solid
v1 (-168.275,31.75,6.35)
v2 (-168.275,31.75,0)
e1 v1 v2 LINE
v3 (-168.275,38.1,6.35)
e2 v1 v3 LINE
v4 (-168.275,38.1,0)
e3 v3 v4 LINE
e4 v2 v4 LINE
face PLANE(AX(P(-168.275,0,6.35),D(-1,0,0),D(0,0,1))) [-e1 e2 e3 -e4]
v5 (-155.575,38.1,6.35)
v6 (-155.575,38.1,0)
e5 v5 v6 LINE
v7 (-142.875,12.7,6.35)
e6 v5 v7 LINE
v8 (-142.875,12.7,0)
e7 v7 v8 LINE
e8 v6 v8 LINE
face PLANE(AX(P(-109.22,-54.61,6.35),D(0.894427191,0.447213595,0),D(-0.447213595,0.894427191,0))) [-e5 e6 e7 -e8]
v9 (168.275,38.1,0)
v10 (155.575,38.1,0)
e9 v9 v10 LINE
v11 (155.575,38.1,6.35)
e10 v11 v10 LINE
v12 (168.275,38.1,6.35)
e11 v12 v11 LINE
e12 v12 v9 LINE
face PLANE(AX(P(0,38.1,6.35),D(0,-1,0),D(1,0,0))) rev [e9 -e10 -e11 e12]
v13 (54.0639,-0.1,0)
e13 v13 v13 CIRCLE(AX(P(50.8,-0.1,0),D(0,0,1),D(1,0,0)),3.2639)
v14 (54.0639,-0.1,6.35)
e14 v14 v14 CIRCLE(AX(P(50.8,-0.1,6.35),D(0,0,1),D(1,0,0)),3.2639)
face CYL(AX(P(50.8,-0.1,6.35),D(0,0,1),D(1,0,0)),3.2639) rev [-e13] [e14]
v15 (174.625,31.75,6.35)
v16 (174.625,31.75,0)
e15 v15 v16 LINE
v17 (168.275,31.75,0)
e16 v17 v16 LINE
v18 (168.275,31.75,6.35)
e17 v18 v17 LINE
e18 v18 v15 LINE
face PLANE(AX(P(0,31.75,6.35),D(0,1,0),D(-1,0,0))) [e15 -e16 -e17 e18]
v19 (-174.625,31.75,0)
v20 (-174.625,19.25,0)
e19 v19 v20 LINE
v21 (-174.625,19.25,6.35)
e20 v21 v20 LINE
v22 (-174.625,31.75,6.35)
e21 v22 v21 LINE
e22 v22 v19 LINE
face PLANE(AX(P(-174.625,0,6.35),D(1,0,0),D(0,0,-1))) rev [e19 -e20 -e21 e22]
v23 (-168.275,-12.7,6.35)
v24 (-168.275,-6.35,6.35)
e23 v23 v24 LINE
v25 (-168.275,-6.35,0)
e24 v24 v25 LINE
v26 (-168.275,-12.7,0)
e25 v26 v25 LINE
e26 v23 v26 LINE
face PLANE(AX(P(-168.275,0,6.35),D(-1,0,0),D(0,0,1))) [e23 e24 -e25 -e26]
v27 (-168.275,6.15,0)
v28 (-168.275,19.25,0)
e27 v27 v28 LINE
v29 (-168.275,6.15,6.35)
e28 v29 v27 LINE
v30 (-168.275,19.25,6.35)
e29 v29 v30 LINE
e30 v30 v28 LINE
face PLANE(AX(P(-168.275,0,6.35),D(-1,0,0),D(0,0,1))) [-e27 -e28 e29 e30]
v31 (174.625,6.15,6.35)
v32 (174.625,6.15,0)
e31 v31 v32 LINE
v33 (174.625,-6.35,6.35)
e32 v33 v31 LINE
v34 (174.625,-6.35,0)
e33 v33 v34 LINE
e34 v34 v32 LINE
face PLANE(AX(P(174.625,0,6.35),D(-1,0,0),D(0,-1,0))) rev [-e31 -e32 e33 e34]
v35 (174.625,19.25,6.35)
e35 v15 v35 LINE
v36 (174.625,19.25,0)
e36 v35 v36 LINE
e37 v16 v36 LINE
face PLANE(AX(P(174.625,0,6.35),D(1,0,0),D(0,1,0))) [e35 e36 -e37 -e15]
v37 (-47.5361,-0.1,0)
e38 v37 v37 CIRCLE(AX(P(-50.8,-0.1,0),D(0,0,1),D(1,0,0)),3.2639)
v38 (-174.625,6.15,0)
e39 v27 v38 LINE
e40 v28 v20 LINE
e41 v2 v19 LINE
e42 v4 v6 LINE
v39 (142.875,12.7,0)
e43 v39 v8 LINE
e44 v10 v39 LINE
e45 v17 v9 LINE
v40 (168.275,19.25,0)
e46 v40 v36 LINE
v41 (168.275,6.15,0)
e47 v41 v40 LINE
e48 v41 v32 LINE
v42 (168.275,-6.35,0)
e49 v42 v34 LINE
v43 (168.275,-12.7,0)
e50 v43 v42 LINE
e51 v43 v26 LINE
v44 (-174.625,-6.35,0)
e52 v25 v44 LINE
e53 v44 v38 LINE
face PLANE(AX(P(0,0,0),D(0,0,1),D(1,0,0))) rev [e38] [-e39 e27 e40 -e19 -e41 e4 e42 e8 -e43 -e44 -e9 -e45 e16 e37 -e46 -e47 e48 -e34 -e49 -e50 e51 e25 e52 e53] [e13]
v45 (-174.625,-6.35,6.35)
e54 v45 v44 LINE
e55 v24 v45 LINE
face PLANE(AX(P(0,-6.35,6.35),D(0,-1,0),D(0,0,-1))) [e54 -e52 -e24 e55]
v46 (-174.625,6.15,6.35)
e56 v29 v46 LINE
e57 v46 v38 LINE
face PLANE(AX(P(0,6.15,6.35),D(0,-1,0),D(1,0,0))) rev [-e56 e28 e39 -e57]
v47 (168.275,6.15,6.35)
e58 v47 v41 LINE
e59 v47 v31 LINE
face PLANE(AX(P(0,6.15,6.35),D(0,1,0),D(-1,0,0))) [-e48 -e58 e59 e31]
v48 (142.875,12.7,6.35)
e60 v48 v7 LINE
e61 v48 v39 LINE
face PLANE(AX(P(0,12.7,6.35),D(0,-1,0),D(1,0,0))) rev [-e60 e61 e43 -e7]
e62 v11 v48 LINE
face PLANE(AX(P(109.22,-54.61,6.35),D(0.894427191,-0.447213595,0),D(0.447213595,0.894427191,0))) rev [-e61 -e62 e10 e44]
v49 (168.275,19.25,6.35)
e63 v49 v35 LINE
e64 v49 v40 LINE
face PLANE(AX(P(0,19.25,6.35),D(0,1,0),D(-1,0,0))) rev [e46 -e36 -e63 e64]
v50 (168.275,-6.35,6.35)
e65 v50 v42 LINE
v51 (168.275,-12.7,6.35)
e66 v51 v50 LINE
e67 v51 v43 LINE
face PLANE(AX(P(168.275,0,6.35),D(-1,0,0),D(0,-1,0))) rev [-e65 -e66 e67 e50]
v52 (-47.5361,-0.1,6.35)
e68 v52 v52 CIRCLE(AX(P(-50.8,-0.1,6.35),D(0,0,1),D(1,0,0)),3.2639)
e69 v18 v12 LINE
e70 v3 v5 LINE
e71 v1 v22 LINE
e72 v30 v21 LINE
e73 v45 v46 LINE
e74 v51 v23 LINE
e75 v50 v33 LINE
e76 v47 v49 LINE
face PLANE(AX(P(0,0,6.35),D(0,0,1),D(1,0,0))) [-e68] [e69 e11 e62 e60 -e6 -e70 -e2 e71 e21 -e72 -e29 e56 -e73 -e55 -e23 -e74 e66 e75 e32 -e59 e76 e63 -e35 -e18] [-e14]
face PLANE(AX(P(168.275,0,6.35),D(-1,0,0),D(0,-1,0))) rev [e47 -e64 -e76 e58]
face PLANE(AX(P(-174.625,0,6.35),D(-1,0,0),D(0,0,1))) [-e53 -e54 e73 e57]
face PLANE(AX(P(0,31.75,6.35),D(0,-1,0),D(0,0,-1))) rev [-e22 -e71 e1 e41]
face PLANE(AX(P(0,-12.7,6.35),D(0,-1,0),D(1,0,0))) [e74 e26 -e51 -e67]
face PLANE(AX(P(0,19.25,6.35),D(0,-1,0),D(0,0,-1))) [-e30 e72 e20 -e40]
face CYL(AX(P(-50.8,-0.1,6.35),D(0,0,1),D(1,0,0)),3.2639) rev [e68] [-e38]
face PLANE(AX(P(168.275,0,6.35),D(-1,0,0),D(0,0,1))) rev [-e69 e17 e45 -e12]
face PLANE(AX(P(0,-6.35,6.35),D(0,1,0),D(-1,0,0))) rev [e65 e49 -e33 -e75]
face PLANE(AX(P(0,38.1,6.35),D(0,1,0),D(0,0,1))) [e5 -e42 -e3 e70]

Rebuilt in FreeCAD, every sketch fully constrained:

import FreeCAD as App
import Part
import Sketcher
Q = App.Units.Quantity

doc = App.newDocument("Part")
body = doc.addObject("PartDesign::Body", "Body")

sketch1 = body.newObject("Sketcher::SketchObject", "Sketch")
sketch1.AttachmentSupport = (doc.getObject("XY_Plane"), [""])
sketch1.MapMode = "FlatFace"
sketch1.addGeometry(Part.LineSegment(App.Vector(-168.275, -6.35, 0), App.Vector(-168.275, -12.7, 0)), False)
sketch1.addGeometry(Part.LineSegment(App.Vector(-168.275, -12.7, 0), App.Vector(168.275, -12.7, 0)), False)
sketch1.addGeometry(Part.LineSegment(App.Vector(168.275, -12.7, 0), App.Vector(168.275, -6.35, 0)), False)
sketch1.addGeometry(Part.LineSegment(App.Vector(168.275, -6.35, 0), App.Vector(174.625, -6.35, 0)), False)
sketch1.addGeometry(Part.LineSegment(App.Vector(174.625, -6.35, 0), App.Vector(174.625, 6.15, 0)), False)
sketch1.addGeometry(Part.LineSegment(App.Vector(174.625, 6.15, 0), App.Vector(168.275, 6.15, 0)), False)
sketch1.addGeometry(Part.LineSegment(App.Vector(168.275, 6.15, 0), App.Vector(168.275, 19.25, 0)), False)
sketch1.addGeometry(Part.LineSegment(App.Vector(168.275, 19.25, 0), App.Vector(174.625, 19.25, 0)), False)
sketch1.addGeometry(Part.LineSegment(App.Vector(174.625, 19.25, 0), App.Vector(174.625, 31.75, 0)), False)
sketch1.addGeometry(Part.LineSegment(App.Vector(174.625, 31.75, 0), App.Vector(168.275, 31.75, 0)), False)
sketch1.addGeometry(Part.LineSegment(App.Vector(168.275, 31.75, 0), App.Vector(168.275, 38.1, 0)), False)
sketch1.addGeometry(Part.LineSegment(App.Vector(168.275, 38.1, 0), App.Vector(155.575, 38.1, 0)), False)
sketch1.addGeometry(Part.LineSegment(App.Vector(155.575, 38.1, 0), App.Vector(142.875, 12.7, 0)), False)
sketch1.addGeometry(Part.LineSegment(App.Vector(142.875, 12.7, 0), App.Vector(-142.875, 12.7, 0)), False)
sketch1.addGeometry(Part.LineSegment(App.Vector(-142.875, 12.7, 0), App.Vector(-155.575, 38.1, 0)), False)
sketch1.addGeometry(Part.LineSegment(App.Vector(-155.575, 38.1, 0), App.Vector(-168.275, 38.1, 0)), False)
sketch1.addGeometry(Part.LineSegment(App.Vector(-168.275, 38.1, 0), App.Vector(-168.275, 31.75, 0)), False)
sketch1.addGeometry(Part.LineSegment(App.Vector(-168.275, 31.75, 0), App.Vector(-174.625, 31.75, 0)), False)
sketch1.addGeometry(Part.LineSegment(App.Vector(-174.625, 31.75, 0), App.Vector(-174.625, 19.25, 0)), False)
sketch1.addGeometry(Part.LineSegment(App.Vector(-174.625, 19.25, 0), App.Vector(-168.275, 19.25, 0)), False)
sketch1.addGeometry(Part.LineSegment(App.Vector(-168.275, 19.25, 0), App.Vector(-168.275, 6.15, 0)), False)
sketch1.addGeometry(Part.LineSegment(App.Vector(-168.275, 6.15, 0), App.Vector(-174.625, 6.15, 0)), False)
sketch1.addGeometry(Part.LineSegment(App.Vector(-174.625, 6.15, 0), App.Vector(-174.625, -6.35, 0)), False)
sketch1.addGeometry(Part.LineSegment(App.Vector(-174.625, -6.35, 0), App.Vector(-168.275, -6.35, 0)), False)
sketch1.addConstraint(Sketcher.Constraint("Coincident", 0, 2, 1, 1))
sketch1.addConstraint(Sketcher.Constraint("Coincident", 1, 2, 2, 1))
sketch1.addConstraint(Sketcher.Constraint("Coincident", 2, 2, 3, 1))
sketch1.addConstraint(Sketcher.Constraint("Coincident", 3, 2, 4, 1))
sketch1.addConstraint(Sketcher.Constraint("Coincident", 4, 2, 5, 1))
sketch1.addConstraint(Sketcher.Constraint("Coincident", 5, 2, 6, 1))
sketch1.addConstraint(Sketcher.Constraint("Coincident", 6, 2, 7, 1))
sketch1.addConstraint(Sketcher.Constraint("Coincident", 7, 2, 8, 1))
sketch1.addConstraint(Sketcher.Constraint("Coincident", 8, 2, 9, 1))
sketch1.addConstraint(Sketcher.Constraint("Coincident", 9, 2, 10, 1))
sketch1.addConstraint(Sketcher.Constraint("Coincident", 10, 2, 11, 1))
sketch1.addConstraint(Sketcher.Constraint("Coincident", 11, 2, 12, 1))
sketch1.addConstraint(Sketcher.Constraint("Coincident", 12, 2, 13, 1))
sketch1.addConstraint(Sketcher.Constraint("Coincident", 13, 2, 14, 1))
sketch1.addConstraint(Sketcher.Constraint("Coincident", 14, 2, 15, 1))
sketch1.addConstraint(Sketcher.Constraint("Coincident", 15, 2, 16, 1))
sketch1.addConstraint(Sketcher.Constraint("Coincident", 16, 2, 17, 1))
sketch1.addConstraint(Sketcher.Constraint("Coincident", 17, 2, 18, 1))
sketch1.addConstraint(Sketcher.Constraint("Coincident", 18, 2, 19, 1))
sketch1.addConstraint(Sketcher.Constraint("Coincident", 19, 2, 20, 1))
sketch1.addConstraint(Sketcher.Constraint("Coincident", 20, 2, 21, 1))
sketch1.addConstraint(Sketcher.Constraint("Coincident", 21, 2, 22, 1))
sketch1.addConstraint(Sketcher.Constraint("Coincident", 22, 2, 23, 1))
sketch1.addConstraint(Sketcher.Constraint("Coincident", 23, 2, 0, 1))
sketch1.addConstraint(Sketcher.Constraint("Vertical", 0))
sketch1.addConstraint(Sketcher.Constraint("Horizontal", 1))
sketch1.addConstraint(Sketcher.Constraint("Vertical", 2))
sketch1.addConstraint(Sketcher.Constraint("Horizontal", 3))
sketch1.addConstraint(Sketcher.Constraint("Vertical", 4))
sketch1.addConstraint(Sketcher.Constraint("Horizontal", 5))
sketch1.addConstraint(Sketcher.Constraint("Vertical", 6))
sketch1.addConstraint(Sketcher.Constraint("Horizontal", 7))
sketch1.addConstraint(Sketcher.Constraint("Vertical", 8))
sketch1.addConstraint(Sketcher.Constraint("Horizontal", 9))
sketch1.addConstraint(Sketcher.Constraint("Vertical", 10))
sketch1.addConstraint(Sketcher.Constraint("Horizontal", 11))
sketch1.addConstraint(Sketcher.Constraint("Horizontal", 13))
sketch1.addConstraint(Sketcher.Constraint("Horizontal", 15))
sketch1.addConstraint(Sketcher.Constraint("Vertical", 16))
sketch1.addConstraint(Sketcher.Constraint("Horizontal", 17))
sketch1.addConstraint(Sketcher.Constraint("Vertical", 18))
sketch1.addConstraint(Sketcher.Constraint("Horizontal", 19))
sketch1.addConstraint(Sketcher.Constraint("Vertical", 20))
sketch1.addConstraint(Sketcher.Constraint("Horizontal", 21))
sketch1.addConstraint(Sketcher.Constraint("Vertical", 22))
sketch1.addConstraint(Sketcher.Constraint("Horizontal", 23))
sketch1.addConstraint(Sketcher.Constraint("Symmetric", 11, 2, 14, 2, -2))
sketch1.addConstraint(Sketcher.Constraint("Symmetric", 9, 2, 16, 2, -2))
sketch1.addConstraint(Sketcher.Constraint("Symmetric", 7, 2, 18, 2, -2))
sketch1.addConstraint(Sketcher.Constraint("Symmetric", 5, 2, 20, 2, -2))
sketch1.addConstraint(Sketcher.Constraint("Symmetric", 3, 2, 22, 2, -2))
sketch1.addConstraint(Sketcher.Constraint("Vertical", 2, 2, 5, 2))
sketch1.addConstraint(Sketcher.Constraint("Vertical", 4, 2, 7, 2))
sketch1.addConstraint(Sketcher.Constraint("Vertical", 6, 2, 9, 2))
sketch1.addConstraint(Sketcher.Constraint("Vertical", 0, 2, 15, 2))
sketch1.addConstraint(Sketcher.Constraint("Equal", 23, 0))
sketch1.addConstraint(Sketcher.Constraint("Equal", 4, 8))
sketch1.addConstraint(Sketcher.Constraint("Equal", 2, 10))
sketch1.addConstraint(Sketcher.Constraint("Equal", 12, 14))
sketch1.addConstraint(Sketcher.Constraint("DistanceX", 11, 2, 11, 1, Q("0.5 in")))
sketch1.addConstraint(Sketcher.Constraint("DistanceX", 12, 2, 5, 2, Q("1 in")))
sketch1.addConstraint(Sketcher.Constraint("DistanceY", 12, 2, 11, 2, Q("1 in")))
sketch1.addConstraint(Sketcher.Constraint("DistanceY", 0, 2, 13, 2, Q("1 in")))
sketch1.addConstraint(Sketcher.Constraint("DistanceX", 1, 1, 1, 2, Q("13.25 in")))
sketch1.addConstraint(Sketcher.Constraint("DistanceX", 3, 1, 3, 2, Q("0.25 in")))
sketch1.addConstraint(Sketcher.Constraint("DistanceY", 0, 2, -1, 1, Q("0.5 in")))
sketch1.addConstraint(Sketcher.Constraint("DistanceY", 4, 1, 4, 2, Q("12.5 mm")))
pad1 = body.newObject("PartDesign::Pad", "Pad")
pad1.Profile = sketch1
pad1.Length = Q("0.25 in")

sketch2 = body.newObject("Sketcher::SketchObject", "Sketch001")
sketch2.AttachmentSupport = (doc.getObject("XY_Plane"), [""])
sketch2.MapMode = "FlatFace"
sketch2.AttachmentOffset = App.Placement(App.Vector(0, 0, 0.25 * 25.4), App.Rotation())
sketch2.addGeometry(Part.Circle(App.Vector(-50.8, -0.1, 0), App.Vector(0, 0, 1), 3.2639), False)
sketch2.addGeometry(Part.Circle(App.Vector(50.8, -0.1, 0), App.Vector(0, 0, 1), 3.2639), False)
sketch2.addConstraint(Sketcher.Constraint("Equal", 0, 1))
sketch2.addConstraint(Sketcher.Constraint("Symmetric", 0, 3, 1, 3, -2))
sketch2.addConstraint(Sketcher.Constraint("Diameter", 0, Q("0.257 in")))
sketch2.addConstraint(Sketcher.Constraint("DistanceX", 0, 3, -1, 1, Q("2 in")))
sketch2.addConstraint(Sketcher.Constraint("DistanceY", 0, 3, -1, 1, Q("0.1 mm")))
doc.recompute()
hole = body.newObject("PartDesign::Hole", "Hole")
hole.Profile = sketch2
hole.ThreadType = "None"
hole.Diameter = Q("0.257 in")
hole.DepthType = "ThroughAll"

doc.recompute()
